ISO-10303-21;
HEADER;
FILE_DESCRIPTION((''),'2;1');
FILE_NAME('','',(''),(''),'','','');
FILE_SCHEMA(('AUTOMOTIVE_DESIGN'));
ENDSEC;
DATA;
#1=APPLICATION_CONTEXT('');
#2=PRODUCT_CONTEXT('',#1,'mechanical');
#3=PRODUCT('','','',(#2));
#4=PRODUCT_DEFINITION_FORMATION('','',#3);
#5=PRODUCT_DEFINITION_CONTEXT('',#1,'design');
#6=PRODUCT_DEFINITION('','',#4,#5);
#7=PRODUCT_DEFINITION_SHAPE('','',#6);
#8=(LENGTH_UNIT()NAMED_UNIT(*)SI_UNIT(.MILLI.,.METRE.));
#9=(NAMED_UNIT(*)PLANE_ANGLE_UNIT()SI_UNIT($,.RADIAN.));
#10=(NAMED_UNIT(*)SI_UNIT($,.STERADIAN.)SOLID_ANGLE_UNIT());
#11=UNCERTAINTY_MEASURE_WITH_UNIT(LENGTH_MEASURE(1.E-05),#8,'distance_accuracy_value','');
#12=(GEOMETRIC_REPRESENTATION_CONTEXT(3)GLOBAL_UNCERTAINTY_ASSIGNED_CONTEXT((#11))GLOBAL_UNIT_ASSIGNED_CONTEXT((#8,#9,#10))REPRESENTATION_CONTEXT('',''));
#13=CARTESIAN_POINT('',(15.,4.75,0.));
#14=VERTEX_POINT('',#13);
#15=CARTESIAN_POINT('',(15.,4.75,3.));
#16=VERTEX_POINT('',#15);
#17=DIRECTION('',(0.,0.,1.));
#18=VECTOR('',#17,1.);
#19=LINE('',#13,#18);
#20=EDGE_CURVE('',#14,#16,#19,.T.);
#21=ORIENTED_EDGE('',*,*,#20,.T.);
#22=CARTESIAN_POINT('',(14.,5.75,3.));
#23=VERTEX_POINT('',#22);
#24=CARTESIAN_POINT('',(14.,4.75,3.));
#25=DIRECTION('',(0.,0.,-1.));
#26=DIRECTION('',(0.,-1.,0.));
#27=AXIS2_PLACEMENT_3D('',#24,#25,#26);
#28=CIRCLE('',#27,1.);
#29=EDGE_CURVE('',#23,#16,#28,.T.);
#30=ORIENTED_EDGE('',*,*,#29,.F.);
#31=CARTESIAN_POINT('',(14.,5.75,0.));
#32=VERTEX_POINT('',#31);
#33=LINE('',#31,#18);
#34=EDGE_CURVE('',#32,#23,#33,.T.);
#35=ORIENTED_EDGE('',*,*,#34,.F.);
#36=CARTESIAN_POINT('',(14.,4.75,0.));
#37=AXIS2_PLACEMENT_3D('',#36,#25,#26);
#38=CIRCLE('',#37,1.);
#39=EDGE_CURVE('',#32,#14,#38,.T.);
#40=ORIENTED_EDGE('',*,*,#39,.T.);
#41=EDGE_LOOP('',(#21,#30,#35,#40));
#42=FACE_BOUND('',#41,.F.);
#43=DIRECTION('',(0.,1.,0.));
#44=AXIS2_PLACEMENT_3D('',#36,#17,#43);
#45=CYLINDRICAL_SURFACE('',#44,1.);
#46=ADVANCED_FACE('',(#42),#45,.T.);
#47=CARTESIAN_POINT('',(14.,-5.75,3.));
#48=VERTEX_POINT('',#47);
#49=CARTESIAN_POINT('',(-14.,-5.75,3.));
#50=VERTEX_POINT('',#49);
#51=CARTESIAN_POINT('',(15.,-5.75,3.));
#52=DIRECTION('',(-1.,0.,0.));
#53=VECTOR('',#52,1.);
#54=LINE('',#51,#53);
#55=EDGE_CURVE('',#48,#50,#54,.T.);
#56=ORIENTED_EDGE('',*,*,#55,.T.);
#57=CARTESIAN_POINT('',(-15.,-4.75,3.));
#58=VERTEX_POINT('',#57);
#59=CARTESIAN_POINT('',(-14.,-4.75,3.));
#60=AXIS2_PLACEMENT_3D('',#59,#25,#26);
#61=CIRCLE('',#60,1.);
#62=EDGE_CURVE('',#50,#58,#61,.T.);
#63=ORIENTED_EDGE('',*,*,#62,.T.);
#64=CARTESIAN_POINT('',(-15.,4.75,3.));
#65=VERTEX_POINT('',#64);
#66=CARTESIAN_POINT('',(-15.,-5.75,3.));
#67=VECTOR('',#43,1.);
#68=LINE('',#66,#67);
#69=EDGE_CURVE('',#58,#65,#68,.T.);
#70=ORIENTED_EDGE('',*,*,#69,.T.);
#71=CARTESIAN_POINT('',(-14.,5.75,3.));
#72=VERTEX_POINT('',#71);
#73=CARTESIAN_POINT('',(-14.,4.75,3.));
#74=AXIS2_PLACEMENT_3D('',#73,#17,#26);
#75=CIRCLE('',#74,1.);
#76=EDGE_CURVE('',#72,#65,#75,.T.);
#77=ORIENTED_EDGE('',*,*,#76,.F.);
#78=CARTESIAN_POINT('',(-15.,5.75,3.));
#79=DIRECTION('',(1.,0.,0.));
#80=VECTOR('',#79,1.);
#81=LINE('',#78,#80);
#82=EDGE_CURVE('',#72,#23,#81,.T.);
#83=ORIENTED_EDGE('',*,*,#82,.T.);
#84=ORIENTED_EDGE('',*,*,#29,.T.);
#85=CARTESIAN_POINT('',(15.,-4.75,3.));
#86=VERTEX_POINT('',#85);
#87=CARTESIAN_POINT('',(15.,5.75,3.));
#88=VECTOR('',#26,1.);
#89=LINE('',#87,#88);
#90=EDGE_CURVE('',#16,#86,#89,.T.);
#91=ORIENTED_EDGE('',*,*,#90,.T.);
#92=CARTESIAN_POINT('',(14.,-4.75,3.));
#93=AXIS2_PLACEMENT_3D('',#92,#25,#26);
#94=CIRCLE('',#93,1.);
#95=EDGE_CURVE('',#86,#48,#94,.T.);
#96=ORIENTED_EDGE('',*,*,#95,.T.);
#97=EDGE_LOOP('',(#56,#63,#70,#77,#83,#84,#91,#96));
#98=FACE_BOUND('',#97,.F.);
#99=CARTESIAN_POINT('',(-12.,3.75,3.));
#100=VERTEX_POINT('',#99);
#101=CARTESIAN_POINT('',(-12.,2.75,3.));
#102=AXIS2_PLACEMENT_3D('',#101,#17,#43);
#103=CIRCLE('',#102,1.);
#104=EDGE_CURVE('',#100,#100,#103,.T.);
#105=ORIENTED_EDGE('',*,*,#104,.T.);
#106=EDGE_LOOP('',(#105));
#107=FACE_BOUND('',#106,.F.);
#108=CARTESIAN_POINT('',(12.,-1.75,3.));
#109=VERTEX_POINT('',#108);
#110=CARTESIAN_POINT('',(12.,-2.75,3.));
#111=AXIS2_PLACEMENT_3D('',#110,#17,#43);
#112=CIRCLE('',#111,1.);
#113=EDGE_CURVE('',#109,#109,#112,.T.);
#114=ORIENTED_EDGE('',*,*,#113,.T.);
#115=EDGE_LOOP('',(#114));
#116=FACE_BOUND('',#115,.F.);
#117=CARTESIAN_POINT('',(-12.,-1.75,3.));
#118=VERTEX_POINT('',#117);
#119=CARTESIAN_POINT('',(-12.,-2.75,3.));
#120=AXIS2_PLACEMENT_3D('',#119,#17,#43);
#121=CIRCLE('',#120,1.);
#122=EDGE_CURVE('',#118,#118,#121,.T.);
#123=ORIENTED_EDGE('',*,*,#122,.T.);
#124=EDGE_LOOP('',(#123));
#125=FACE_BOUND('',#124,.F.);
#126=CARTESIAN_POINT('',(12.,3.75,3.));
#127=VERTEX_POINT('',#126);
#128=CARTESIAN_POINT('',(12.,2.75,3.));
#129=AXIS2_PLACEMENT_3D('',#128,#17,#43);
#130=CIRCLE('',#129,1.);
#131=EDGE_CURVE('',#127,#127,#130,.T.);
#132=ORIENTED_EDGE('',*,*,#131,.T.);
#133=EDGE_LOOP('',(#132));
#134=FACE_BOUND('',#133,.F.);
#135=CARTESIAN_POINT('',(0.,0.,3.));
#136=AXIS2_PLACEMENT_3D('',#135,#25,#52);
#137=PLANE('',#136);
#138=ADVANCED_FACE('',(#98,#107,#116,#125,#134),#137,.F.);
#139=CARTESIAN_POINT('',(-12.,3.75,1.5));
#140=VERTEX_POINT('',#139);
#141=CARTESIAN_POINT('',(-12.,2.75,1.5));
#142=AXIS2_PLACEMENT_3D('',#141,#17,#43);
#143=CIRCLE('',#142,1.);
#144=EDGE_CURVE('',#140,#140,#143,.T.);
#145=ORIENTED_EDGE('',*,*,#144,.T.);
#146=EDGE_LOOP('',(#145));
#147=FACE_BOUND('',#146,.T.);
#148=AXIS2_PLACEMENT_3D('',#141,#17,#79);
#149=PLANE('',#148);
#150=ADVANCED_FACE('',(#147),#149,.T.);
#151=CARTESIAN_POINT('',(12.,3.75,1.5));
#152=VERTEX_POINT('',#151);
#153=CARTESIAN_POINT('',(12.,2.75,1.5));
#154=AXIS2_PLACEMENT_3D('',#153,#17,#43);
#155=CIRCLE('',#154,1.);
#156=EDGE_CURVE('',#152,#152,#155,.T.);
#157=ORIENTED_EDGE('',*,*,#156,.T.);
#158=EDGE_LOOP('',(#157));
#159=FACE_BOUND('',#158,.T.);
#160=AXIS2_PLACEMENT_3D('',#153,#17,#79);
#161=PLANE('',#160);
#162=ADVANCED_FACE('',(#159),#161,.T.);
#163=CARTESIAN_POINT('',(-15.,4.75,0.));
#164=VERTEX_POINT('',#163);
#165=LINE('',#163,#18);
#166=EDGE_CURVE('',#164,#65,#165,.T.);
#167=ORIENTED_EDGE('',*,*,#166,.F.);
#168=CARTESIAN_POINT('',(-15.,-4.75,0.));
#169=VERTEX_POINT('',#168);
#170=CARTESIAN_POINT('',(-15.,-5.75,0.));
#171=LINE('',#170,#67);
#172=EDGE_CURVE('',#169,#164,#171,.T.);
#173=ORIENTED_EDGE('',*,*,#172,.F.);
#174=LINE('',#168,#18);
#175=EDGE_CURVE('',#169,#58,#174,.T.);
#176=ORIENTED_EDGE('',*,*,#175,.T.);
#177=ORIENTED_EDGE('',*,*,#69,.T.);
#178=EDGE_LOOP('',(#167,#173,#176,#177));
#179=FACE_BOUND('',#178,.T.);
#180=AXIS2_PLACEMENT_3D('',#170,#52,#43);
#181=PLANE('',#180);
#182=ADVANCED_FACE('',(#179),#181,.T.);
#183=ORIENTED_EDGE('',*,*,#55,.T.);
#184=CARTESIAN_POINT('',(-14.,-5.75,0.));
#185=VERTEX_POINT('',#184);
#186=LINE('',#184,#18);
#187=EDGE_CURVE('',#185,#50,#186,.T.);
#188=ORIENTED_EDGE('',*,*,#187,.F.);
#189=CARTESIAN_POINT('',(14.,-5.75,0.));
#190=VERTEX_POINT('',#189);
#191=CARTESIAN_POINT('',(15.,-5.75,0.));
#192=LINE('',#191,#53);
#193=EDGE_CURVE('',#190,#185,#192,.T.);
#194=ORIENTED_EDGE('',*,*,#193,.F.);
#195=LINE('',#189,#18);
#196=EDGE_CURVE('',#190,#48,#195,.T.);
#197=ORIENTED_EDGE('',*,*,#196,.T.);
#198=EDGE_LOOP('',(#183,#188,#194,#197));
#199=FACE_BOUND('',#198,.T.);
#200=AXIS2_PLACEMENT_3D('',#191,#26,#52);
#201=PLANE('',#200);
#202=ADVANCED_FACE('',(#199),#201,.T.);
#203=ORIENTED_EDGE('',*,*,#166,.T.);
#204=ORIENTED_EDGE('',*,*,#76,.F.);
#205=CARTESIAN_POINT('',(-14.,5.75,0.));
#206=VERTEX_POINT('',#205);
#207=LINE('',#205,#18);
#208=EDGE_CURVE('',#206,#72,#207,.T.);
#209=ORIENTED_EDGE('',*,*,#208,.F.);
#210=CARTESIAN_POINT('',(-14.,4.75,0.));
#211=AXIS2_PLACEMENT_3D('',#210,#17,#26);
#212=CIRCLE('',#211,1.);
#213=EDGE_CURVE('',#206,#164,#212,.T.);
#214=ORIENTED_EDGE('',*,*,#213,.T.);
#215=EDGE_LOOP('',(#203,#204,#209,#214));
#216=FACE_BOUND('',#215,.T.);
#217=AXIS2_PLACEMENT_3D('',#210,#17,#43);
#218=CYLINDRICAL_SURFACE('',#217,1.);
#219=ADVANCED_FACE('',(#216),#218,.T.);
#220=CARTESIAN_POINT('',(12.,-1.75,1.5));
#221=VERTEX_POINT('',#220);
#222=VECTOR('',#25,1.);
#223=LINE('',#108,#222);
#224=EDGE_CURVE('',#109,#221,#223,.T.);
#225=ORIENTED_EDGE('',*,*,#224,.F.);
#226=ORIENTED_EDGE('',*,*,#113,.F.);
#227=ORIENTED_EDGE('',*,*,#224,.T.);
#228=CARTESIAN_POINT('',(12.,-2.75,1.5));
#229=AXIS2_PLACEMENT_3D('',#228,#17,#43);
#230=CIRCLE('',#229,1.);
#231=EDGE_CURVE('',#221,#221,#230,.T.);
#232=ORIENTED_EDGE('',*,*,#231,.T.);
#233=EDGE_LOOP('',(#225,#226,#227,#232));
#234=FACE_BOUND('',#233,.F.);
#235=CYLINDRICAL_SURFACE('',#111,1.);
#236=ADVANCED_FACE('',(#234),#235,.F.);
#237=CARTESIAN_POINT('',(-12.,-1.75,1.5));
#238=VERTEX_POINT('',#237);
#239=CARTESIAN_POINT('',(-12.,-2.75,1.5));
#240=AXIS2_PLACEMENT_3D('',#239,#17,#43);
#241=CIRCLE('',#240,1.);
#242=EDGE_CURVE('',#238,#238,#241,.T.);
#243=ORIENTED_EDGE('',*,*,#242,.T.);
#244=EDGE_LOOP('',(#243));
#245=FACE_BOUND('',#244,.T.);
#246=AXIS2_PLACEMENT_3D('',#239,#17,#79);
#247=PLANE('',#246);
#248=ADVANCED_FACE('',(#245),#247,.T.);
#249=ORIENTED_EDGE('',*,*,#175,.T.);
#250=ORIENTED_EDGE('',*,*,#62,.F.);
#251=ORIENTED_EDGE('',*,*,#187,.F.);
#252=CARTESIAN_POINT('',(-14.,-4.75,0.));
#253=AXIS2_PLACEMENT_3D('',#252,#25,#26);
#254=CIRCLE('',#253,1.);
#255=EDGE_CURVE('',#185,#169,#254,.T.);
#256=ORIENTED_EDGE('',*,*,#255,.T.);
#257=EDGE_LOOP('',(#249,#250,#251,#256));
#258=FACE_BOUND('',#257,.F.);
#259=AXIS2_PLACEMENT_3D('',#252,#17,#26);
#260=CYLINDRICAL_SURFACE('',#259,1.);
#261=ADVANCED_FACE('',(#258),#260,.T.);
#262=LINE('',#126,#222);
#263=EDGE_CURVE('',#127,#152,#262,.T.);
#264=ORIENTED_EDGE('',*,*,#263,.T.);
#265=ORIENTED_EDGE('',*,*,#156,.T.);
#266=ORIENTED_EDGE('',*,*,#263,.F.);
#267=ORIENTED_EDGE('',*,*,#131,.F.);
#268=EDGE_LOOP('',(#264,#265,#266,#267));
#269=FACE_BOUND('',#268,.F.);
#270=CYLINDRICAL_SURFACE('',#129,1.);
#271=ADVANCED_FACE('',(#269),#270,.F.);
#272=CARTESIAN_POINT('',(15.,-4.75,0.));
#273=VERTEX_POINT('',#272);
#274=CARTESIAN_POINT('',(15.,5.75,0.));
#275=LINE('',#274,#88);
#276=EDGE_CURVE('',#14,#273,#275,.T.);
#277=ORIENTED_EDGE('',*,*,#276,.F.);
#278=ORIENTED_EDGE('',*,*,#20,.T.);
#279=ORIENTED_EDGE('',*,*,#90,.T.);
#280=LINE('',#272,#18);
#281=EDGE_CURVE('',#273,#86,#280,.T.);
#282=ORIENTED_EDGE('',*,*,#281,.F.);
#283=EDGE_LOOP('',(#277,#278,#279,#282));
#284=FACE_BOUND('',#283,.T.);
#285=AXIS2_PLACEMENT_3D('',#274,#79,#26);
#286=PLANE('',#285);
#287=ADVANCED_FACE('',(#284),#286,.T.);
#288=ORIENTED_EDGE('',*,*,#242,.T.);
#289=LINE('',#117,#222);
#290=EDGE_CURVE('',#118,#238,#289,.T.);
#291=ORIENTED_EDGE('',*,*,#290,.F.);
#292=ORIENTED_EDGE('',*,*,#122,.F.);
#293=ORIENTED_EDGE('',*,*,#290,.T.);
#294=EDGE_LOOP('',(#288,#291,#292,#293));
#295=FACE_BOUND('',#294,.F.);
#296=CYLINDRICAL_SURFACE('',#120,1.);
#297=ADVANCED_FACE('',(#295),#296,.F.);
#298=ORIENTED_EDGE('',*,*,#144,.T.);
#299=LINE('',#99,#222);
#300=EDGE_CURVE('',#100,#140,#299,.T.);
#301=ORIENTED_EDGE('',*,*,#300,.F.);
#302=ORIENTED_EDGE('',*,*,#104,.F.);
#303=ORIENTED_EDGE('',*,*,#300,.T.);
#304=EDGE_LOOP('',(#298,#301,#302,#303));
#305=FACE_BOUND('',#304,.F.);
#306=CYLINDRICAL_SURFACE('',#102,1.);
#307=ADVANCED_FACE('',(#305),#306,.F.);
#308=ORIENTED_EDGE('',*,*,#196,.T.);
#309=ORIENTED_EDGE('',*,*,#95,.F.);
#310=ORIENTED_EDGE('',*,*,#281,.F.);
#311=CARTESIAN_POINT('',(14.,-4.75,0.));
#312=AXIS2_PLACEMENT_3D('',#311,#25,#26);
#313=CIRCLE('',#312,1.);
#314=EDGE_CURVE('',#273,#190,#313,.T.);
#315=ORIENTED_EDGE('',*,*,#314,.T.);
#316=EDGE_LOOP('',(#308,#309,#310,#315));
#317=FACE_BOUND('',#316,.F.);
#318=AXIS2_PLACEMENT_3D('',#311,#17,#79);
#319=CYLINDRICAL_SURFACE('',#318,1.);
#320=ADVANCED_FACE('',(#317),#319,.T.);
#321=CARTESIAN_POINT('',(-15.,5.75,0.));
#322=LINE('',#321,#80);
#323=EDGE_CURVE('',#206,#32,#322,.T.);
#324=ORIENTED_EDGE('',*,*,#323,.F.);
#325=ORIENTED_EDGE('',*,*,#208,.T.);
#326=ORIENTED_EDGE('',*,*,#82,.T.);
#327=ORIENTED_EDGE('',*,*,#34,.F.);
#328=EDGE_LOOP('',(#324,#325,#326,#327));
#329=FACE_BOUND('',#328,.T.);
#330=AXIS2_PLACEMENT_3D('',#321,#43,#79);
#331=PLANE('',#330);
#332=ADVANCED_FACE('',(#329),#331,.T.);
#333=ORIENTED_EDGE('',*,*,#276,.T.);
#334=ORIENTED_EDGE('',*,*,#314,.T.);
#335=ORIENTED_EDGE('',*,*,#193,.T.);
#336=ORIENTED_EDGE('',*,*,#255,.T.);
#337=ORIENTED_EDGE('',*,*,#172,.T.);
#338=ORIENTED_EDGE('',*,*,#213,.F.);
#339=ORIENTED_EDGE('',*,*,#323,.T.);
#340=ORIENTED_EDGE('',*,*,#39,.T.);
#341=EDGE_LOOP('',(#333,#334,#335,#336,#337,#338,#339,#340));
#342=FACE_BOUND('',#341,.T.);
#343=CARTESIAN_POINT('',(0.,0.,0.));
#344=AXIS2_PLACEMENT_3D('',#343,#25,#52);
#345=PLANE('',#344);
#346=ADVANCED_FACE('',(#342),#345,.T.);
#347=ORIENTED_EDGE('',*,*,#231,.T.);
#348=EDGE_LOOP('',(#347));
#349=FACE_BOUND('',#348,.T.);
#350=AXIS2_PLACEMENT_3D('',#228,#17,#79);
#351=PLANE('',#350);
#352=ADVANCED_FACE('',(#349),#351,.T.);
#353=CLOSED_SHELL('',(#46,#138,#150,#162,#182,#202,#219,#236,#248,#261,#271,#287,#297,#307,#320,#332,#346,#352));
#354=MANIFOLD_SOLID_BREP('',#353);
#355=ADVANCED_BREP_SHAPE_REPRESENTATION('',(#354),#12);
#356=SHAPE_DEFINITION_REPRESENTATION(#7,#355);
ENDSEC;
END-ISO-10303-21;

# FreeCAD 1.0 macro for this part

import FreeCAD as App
import Part
import Sketcher

V = App.Vector


def edges_at(feature, points):
    """Names of the edges that pass closest to the given points."""
    edges = feature.Shape.Edges
    near = lambda p: min(range(len(edges)), key=lambda i: edges[i].distToShape(Part.Vertex(*p))[0])
    return sorted({f"Edge{near(p) + 1}" for p in points})

doc = App.newDocument("Part")
body = doc.addObject("PartDesign::Body", "Body")

# Sketch on XY plane
sketch1 = body.newObject("Sketcher::SketchObject", "Sketch")
sketch1.AttachmentSupport = (doc.getObject("XY_Plane"), [""])
sketch1.MapMode = "FlatFace"
sketch1.addGeometry(Part.LineSegment(V(15, 5.75, 0), V(-15, 5.75, 0)), False)
sketch1.addGeometry(Part.LineSegment(V(-15, 5.75, 0), V(-15, -5.75, 0)), False)
sketch1.addGeometry(Part.LineSegment(V(-15, -5.75, 0), V(15, -5.75, 0)), False)
sketch1.addGeometry(Part.LineSegment(V(15, -5.75, 0), V(15, 5.75, 0)), False)
sketch1.addConstraint(Sketcher.Constraint("Coincident", 0, 2, 1, 1))
sketch1.addConstraint(Sketcher.Constraint("Coincident", 1, 2, 2, 1))
sketch1.addConstraint(Sketcher.Constraint("Coincident", 2, 2, 3, 1))
sketch1.addConstraint(Sketcher.Constraint("Coincident", 3, 2, 0, 1))
sketch1.addConstraint(Sketcher.Constraint("Horizontal", 0))
sketch1.addConstraint(Sketcher.Constraint("Vertical", 1))
sketch1.addConstraint(Sketcher.Constraint("Horizontal", 2))
sketch1.addConstraint(Sketcher.Constraint("Vertical", 3))
sketch1.addConstraint(Sketcher.Constraint("Symmetric", 0, 2, 2, 2, -1, 1))
sketch1.addConstraint(Sketcher.Constraint("DistanceX", 0, 2, -1, 1, 15.0))
sketch1.addConstraint(Sketcher.Constraint("DistanceY", 1, 2, 1, 1, 11.5))
pad1 = body.newObject("PartDesign::Pad", "Pad")
pad1.Profile = sketch1
pad1.Length = 3
doc.recompute()

fillet = body.newObject("PartDesign::Fillet", "Fillet")
fillet.Base = (pad1, edges_at(pad1, [
    (-15, -5.75, 1.5),
    (15, -5.75, 1.5),
    (15, 5.75, 1.5),
    (-15, 5.75, 1.5),
]))
fillet.Radius = 1

# Sketch on XY plane
sketch2 = body.newObject("Sketcher::SketchObject", "Sketch001")
sketch2.AttachmentSupport = (doc.getObject("XY_Plane"), [""])
sketch2.MapMode = "FlatFace"
sketch2.AttachmentOffset = App.Placement(V(0, 0, 3), App.Rotation())
sketch2.addGeometry(Part.Circle(V(-12, -2.75, 0), V(0, 0, 1), 1), False)
sketch2.addGeometry(Part.Circle(V(-12, 2.75, 0), V(0, 0, 1), 1), False)
sketch2.addGeometry(Part.Circle(V(12, 2.75, 0), V(0, 0, 1), 1), False)
sketch2.addGeometry(Part.Circle(V(12, -2.75, 0), V(0, 0, 1), 1), False)
sketch2.addConstraint(Sketcher.Constraint("Equal", 0, 1))
sketch2.addConstraint(Sketcher.Constraint("Equal", 1, 2))
sketch2.addConstraint(Sketcher.Constraint("Equal", 2, 3))
sketch2.addConstraint(Sketcher.Constraint("Symmetric", 0, 3, 2, 3, -1, 1))
sketch2.addConstraint(Sketcher.Constraint("Symmetric", 1, 3, 3, 3, -1, 1))
sketch2.addConstraint(Sketcher.Constraint("Symmetric", 1, 3, 2, 3, -2))
sketch2.addConstraint(Sketcher.Constraint("Diameter", 0, 2.0))
sketch2.addConstraint(Sketcher.Constraint("DistanceY", 0, 3, -1, 1, 2.75))
sketch2.addConstraint(Sketcher.Constraint("DistanceX", 0, 3, -1, 1, 12.0))
pocket1 = body.newObject("PartDesign::Pocket", "Pocket")
pocket1.Profile = sketch2
pocket1.Length = 1.5

doc.recompute()
